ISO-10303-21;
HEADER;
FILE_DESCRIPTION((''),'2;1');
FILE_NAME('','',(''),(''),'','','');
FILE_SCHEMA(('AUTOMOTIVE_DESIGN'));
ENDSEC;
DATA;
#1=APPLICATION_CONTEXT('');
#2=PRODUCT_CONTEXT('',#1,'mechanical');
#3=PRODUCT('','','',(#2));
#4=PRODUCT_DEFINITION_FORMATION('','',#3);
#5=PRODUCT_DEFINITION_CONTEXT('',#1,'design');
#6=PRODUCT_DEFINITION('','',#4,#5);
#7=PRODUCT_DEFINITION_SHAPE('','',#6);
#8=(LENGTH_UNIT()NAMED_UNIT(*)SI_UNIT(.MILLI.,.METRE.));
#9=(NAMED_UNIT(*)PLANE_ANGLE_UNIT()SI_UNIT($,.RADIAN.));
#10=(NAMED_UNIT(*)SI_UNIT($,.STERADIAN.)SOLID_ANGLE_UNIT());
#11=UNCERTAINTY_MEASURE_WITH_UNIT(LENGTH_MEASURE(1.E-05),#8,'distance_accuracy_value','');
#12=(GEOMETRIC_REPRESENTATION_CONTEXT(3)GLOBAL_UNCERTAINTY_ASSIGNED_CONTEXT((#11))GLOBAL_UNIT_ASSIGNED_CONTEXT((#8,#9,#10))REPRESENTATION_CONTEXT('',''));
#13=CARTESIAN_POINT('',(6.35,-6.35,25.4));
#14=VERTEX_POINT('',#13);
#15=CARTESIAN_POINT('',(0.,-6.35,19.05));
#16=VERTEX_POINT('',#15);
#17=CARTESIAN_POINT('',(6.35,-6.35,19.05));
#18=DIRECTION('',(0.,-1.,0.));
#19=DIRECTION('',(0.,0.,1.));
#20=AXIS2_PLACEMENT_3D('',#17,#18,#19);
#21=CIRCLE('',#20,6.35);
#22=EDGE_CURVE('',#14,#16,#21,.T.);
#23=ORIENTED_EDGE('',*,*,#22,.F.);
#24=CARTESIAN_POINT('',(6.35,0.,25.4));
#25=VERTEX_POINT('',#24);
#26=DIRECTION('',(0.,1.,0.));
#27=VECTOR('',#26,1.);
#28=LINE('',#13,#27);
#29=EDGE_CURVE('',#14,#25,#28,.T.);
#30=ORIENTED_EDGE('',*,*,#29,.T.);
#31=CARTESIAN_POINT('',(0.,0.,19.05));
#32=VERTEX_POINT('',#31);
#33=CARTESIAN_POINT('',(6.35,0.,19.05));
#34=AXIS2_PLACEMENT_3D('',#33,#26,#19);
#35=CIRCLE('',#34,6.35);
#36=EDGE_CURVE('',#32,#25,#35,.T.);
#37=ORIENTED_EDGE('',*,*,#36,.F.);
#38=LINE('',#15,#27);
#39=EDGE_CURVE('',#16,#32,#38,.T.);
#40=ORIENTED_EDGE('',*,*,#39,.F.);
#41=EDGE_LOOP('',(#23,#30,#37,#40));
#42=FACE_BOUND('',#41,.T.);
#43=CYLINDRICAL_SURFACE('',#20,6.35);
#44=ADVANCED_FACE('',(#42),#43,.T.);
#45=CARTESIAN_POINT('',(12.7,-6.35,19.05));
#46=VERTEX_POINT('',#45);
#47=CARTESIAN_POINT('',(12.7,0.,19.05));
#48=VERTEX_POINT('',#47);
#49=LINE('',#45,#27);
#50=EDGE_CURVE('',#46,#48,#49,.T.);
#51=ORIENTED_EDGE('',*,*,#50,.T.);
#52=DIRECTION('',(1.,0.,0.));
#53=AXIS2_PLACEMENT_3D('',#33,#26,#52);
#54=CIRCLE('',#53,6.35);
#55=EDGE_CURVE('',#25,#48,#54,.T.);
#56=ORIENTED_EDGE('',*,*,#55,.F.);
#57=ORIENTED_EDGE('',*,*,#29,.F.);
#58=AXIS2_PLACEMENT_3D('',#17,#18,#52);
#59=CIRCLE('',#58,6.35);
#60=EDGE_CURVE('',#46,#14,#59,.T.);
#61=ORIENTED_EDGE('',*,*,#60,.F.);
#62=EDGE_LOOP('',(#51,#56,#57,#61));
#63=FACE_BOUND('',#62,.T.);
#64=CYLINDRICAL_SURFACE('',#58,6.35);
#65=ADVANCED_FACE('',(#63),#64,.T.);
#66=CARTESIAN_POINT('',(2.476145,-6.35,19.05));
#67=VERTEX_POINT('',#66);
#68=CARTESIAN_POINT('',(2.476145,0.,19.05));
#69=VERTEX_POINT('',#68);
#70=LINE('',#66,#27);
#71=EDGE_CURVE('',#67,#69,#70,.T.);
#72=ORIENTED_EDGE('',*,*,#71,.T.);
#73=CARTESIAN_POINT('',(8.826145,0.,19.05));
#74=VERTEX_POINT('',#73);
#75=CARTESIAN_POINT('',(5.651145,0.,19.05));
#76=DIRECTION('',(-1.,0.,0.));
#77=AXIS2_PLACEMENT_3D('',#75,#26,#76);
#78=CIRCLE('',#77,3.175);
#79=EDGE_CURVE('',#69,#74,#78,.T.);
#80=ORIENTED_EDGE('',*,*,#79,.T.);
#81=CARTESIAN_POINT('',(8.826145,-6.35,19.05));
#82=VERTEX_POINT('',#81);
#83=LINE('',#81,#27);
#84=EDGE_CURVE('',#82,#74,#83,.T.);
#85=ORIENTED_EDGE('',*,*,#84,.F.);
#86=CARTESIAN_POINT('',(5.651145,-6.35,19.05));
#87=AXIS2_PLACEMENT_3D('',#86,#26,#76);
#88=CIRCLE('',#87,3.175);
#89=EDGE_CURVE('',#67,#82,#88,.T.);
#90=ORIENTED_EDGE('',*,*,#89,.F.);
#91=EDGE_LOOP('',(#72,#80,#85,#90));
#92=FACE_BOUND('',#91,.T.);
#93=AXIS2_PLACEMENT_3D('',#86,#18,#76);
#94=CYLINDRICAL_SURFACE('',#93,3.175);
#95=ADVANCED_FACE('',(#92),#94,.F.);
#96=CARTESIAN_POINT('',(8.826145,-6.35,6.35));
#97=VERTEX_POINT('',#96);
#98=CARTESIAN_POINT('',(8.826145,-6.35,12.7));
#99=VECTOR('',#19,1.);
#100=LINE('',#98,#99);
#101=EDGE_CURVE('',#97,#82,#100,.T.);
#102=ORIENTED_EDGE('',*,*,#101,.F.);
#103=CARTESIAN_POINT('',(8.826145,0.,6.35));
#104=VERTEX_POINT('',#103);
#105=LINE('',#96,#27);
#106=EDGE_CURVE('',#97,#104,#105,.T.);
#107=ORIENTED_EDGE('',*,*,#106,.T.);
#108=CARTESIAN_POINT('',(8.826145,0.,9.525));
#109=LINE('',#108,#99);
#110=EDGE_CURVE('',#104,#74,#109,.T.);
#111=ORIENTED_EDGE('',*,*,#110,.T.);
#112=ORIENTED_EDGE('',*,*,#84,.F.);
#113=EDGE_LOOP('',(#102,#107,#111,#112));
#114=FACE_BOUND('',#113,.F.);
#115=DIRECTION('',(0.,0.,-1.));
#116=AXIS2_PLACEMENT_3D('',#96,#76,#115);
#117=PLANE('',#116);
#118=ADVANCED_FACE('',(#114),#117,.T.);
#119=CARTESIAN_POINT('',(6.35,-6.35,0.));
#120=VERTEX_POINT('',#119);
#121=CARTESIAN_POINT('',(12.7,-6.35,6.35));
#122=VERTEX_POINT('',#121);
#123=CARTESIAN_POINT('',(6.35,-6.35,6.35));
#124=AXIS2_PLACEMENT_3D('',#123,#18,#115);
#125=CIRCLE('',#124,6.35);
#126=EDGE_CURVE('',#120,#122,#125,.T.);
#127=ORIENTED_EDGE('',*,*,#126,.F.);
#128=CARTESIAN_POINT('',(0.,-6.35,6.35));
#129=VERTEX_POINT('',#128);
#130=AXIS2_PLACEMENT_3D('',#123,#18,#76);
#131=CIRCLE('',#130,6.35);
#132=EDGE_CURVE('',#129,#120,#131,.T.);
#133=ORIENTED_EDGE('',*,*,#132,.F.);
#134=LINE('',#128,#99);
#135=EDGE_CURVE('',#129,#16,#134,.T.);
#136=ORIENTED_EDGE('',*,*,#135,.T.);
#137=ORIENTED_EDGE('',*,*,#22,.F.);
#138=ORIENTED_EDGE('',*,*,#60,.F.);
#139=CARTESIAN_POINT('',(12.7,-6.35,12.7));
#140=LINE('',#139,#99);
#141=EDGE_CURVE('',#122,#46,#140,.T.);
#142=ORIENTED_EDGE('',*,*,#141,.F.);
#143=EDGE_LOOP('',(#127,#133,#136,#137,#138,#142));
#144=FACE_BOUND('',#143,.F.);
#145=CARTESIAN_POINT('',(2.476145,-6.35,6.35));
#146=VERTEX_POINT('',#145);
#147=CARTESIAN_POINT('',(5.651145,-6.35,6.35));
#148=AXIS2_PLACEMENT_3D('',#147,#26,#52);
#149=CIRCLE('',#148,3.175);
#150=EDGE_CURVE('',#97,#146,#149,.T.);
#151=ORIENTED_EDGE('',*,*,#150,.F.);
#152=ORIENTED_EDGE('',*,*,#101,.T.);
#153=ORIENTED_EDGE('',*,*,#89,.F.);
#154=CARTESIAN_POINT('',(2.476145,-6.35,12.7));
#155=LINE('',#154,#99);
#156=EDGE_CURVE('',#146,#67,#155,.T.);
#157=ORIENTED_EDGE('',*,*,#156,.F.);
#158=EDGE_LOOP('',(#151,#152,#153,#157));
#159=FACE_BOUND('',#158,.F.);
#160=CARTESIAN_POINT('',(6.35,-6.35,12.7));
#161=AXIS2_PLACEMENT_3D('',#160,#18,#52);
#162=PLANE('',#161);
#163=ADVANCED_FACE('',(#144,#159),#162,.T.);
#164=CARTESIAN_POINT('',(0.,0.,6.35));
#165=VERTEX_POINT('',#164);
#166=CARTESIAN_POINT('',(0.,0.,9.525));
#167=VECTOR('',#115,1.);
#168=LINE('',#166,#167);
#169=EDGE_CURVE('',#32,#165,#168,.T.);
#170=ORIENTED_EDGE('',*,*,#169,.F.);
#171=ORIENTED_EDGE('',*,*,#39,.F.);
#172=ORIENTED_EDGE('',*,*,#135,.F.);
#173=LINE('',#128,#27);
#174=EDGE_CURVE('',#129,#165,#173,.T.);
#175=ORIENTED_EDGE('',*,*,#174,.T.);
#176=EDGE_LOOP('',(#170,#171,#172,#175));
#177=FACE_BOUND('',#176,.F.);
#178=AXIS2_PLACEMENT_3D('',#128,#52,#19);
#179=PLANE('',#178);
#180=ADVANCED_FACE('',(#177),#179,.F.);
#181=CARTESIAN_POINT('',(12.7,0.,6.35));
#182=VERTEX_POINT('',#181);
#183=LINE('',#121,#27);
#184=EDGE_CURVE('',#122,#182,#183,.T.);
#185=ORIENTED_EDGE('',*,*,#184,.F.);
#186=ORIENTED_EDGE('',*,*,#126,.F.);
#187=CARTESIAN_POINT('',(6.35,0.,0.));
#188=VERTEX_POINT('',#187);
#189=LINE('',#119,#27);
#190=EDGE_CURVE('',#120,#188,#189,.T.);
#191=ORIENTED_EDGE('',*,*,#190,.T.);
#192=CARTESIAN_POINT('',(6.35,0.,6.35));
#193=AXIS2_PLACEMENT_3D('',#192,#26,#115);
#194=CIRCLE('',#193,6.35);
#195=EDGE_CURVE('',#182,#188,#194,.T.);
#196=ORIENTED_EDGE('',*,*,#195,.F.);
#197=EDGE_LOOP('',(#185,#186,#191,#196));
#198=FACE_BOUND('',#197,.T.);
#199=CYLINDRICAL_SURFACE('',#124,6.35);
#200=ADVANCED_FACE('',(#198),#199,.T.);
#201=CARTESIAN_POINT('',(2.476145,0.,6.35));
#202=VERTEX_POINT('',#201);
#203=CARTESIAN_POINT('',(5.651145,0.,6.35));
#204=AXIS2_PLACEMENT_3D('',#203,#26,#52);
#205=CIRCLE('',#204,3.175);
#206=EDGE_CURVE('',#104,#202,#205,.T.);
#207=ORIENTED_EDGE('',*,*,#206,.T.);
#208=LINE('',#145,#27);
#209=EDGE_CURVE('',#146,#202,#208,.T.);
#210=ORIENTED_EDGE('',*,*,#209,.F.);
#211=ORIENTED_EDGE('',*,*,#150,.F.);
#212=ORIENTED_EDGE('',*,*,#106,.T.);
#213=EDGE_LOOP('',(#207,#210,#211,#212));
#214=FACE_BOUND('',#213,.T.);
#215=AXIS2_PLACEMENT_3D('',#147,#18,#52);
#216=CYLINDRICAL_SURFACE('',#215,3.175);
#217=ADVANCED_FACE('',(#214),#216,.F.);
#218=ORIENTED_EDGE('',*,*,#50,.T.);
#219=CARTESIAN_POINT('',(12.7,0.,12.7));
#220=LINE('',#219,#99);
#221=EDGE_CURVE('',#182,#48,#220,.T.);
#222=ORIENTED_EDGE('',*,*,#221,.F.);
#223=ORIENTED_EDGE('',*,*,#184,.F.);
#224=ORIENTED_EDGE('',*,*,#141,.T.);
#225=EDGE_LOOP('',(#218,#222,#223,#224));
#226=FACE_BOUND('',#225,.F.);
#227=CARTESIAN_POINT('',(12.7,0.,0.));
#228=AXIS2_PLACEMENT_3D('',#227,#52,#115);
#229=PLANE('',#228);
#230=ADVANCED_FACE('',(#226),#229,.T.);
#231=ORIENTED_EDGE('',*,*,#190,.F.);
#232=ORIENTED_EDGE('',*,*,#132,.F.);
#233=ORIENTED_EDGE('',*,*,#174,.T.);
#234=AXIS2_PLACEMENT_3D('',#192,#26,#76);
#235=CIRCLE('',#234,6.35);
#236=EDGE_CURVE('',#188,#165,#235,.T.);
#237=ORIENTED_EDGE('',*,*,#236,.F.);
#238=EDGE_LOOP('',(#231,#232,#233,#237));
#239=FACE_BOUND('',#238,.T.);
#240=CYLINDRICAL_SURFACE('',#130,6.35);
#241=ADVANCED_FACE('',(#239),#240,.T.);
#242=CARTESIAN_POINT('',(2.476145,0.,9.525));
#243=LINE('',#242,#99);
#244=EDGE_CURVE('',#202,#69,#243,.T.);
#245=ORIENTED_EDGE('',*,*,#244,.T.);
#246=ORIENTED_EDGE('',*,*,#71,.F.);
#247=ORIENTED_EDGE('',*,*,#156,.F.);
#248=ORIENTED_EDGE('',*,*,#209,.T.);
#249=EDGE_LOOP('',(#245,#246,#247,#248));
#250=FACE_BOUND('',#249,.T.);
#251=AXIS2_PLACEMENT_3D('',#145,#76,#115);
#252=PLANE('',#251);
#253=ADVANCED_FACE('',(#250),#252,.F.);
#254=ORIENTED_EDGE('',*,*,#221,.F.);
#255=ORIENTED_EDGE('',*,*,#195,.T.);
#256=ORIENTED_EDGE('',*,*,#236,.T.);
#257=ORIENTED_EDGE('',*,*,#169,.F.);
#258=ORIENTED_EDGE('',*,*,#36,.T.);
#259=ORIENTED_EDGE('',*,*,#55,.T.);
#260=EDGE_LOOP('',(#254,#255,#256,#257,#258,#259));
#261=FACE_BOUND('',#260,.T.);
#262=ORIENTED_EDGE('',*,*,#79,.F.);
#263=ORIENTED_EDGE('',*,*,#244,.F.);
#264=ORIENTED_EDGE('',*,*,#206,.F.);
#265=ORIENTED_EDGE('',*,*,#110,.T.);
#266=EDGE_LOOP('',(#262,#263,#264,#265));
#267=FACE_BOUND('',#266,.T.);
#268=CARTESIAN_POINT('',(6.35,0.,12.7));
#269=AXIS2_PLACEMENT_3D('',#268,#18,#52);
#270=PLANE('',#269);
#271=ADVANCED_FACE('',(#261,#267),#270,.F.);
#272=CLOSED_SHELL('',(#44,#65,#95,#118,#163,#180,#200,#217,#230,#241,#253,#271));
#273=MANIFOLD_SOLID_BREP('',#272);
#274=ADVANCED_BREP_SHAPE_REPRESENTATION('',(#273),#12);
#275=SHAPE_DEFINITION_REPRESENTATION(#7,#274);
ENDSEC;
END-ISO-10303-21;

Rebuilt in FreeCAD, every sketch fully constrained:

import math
import FreeCAD as App
import Part
import Sketcher

V = App.Vector
Q = App.Units.Quantity

doc = App.newDocument("Part")
body = doc.addObject("PartDesign::Body", "Body")

# Sketch on XZ plane
sketch1 = body.newObject("Sketcher::SketchObject", "Sketch")
sketch1.AttachmentSupport = (doc.getObject("XZ_Plane"), [""])
sketch1.MapMode = "FlatFace"
sketch1.addGeometry([
    Part.LineSegment(V(-12.7, 25.4, 0), V(-12.7, 0, 0)),
    Part.LineSegment(V(-12.7, 0, 0), V(0, 0, 0)),
    Part.LineSegment(V(0, 0, 0), V(0, 25.4, 0)),
    Part.LineSegment(V(0, 25.4, 0), V(-12.7, 25.4, 0)),
], False)
sketch1.addConstraint([
    Sketcher.Constraint("Coincident", 0, 2, 1, 1),
    Sketcher.Constraint("Coincident", 1, 2, 2, 1),
    Sketcher.Constraint("Coincident", 2, 2, 3, 1),
    Sketcher.Constraint("Coincident", 3, 2, 0, 1),
    Sketcher.Constraint("Vertical", 0),
    Sketcher.Constraint("Horizontal", 1),
    Sketcher.Constraint("Vertical", 2),
    Sketcher.Constraint("Horizontal", 3),
    Sketcher.Constraint("Coincident", 1, 2, -1, 1),
    Sketcher.Constraint("DistanceY", 0, 2, 0, 1, Q("1 in")),
    Sketcher.Constraint("DistanceX", 1, 1, 1, 2, Q("0.5 in")),
])
pad1 = body.newObject("PartDesign::Pad", "Pad")
pad1.Profile = sketch1
pad1.Length = Q("0.25 in")

# Sketch on XZ plane
sketch2 = body.newObject("Sketcher::SketchObject", "Sketch001")
sketch2.AttachmentSupport = (doc.getObject("XZ_Plane"), [""])
sketch2.MapMode = "FlatFace"
sketch2.AttachmentOffset = App.Placement(V(0, 0, 0.25 * 25.4), App.Rotation())
sketch2.addGeometry([
    Part.LineSegment(V(-12.7, 25.4, 0), V(-12.7, 19.05, 0)),  # 0
    Part.ArcOfCircle(Part.Circle(V(-6.35, 19.05, 0), V(0, 0, 1), 6.35), math.radians(90), math.radians(180)),  # 1
    Part.LineSegment(V(-6.35, 25.4, 0), V(-12.7, 25.4, 0)),  # 2
    Part.LineSegment(V(0, 25.4, 0), V(-6.35, 25.4, 0)),  # 3
    Part.ArcOfCircle(Part.Circle(V(-6.35, 19.05, 0), V(0, 0, 1), 6.35), math.radians(0), math.radians(90)),  # 4
    Part.LineSegment(V(0, 19.05, 0), V(0, 25.4, 0)),  # 5
    Part.ArcOfCircle(Part.Circle(V(-6.35, 6.35, 0), V(0, 0, 1), 6.35), math.radians(-90), math.radians(0)),  # 6
    Part.LineSegment(V(-6.35, 0, 0), V(0, 0, 0)),  # 7
    Part.LineSegment(V(0, 0, 0), V(0, 6.35, 0)),  # 8
    Part.ArcOfCircle(Part.Circle(V(-6.35, 6.35, 0), V(0, 0, 1), 6.35), math.radians(180), math.radians(270)),  # 9
    Part.LineSegment(V(-12.7, 6.35, 0), V(-12.7, 0, 0)),  # 10
    Part.LineSegment(V(-12.7, 0, 0), V(-6.35, 0, 0)),  # 11
], False)
sketch2.addConstraint([
    Sketcher.Constraint("Tangent", 0, 2, 1, 2),
    Sketcher.Constraint("Tangent", 1, 1, 2, 1),
    Sketcher.Constraint("Coincident", 2, 2, 0, 1),
    Sketcher.Constraint("Tangent", 3, 2, 4, 2),
    Sketcher.Constraint("Tangent", 4, 1, 5, 1),
    Sketcher.Constraint("Coincident", 5, 2, 3, 1),
    Sketcher.Constraint("Tangent", 6, 1, 7, 1),
    Sketcher.Constraint("Coincident", 7, 2, 8, 1),
    Sketcher.Constraint("Tangent", 8, 2, 6, 2),
    Sketcher.Constraint("Tangent", 9, 1, 10, 1),
    Sketcher.Constraint("Coincident", 10, 2, 11, 1),
    Sketcher.Constraint("Tangent", 11, 2, 9, 2),
    Sketcher.Constraint("Vertical", 0),
    Sketcher.Constraint("Horizontal", 2),
    Sketcher.Constraint("Horizontal", 3),
    Sketcher.Constraint("Vertical", 5),
    Sketcher.Constraint("Horizontal", 7),
    Sketcher.Constraint("Vertical", 8),
    Sketcher.Constraint("Vertical", 10),
    Sketcher.Constraint("Horizontal", 11),
    Sketcher.Constraint("Coincident", 7, 2, -1, 1),
    Sketcher.Constraint("Coincident", 4, 3, 1, 3),
    Sketcher.Constraint("Coincident", 9, 3, 6, 3),
    Sketcher.Constraint("Equal", 1, 4),
    Sketcher.Constraint("Equal", 4, 6),
    Sketcher.Constraint("Equal", 6, 9),
    Sketcher.Constraint("PointOnObject", 4, 1, -2),
    Sketcher.Constraint("Radius", 1, Q("0.25 in")),
    Sketcher.Constraint("DistanceY", -1, 1, 1, 1, Q("1 in")),
])
pocket1 = body.newObject("PartDesign::Pocket", "Pocket")
pocket1.Profile = sketch2
pocket1.Length = Q("10 in")

# Sketch on XZ plane
sketch3 = body.newObject("Sketcher::SketchObject", "Sketch002")
sketch3.AttachmentSupport = (doc.getObject("XZ_Plane"), [""])
sketch3.MapMode = "FlatFace"
sketch3.AttachmentOffset = App.Placement(V(0, 0, 0.25 * 25.4), App.Rotation())
sketch3.addGeometry([
    Part.ArcOfCircle(Part.Circle(V(-5.651145, 19.05, 0), V(0, 0, 1), 3.175), math.radians(0), math.radians(180)),
    Part.LineSegment(V(-8.826145, 19.05, 0), V(-8.826145, 6.35, 0)),
    Part.ArcOfCircle(Part.Circle(V(-5.651145, 6.35, 0), V(0, 0, 1), 3.175), math.radians(180), math.radians(360)),
    Part.LineSegment(V(-2.476145, 6.35, 0), V(-2.476145, 19.05, 0)),
], False)
sketch3.addConstraint([
    Sketcher.Constraint("Tangent", 0, 2, 1, 1),
    Sketcher.Constraint("Tangent", 1, 2, 2, 1),
    Sketcher.Constraint("Tangent", 2, 2, 3, 1),
    Sketcher.Constraint("Tangent", 3, 2, 0, 1),
    Sketcher.Constraint("Vertical", 1),
    Sketcher.Constraint("Vertical", 3),
    Sketcher.Constraint("DistanceY", 1, 2, 1, 1, Q("0.5 in")),
    Sketcher.Constraint("Radius", 0, Q("0.125 in")),
    Sketcher.Constraint("DistanceY", -1, 1, 0, 3, Q("0.75 in")),
    Sketcher.Constraint("DistanceX", 0, 3, -1, 1, Q("5.651145 mm")),
])
pocket2 = body.newObject("PartDesign::Pocket", "Pocket001")
pocket2.Profile = sketch3
pocket2.Length = Q("10 in")
body2 = doc.addObject("PartDesign::Body", "Body001")
doc.recompute()

body2.BaseFeature = body
doc.recompute()

mirroring = doc.addObject("Part::Mirroring", "Mirroring")
mirroring.Source = body
mirroring.Base = V(0, 0, 0)
mirroring.Normal = V(1, 0, 0)
body3 = doc.addObject("PartDesign::Body", "Body002")
body3.BaseFeature = mirroring
boolean = body2.newObject("PartDesign::Boolean", "Boolean")
boolean.Type = "Fuse"
boolean.addObjects([body3])
doc.recompute()

# Sketch on XZ plane
sketch4 = body2.newObject("Sketcher::SketchObject", "Sketch003")
sketch4.AttachmentSupport = (doc.getObject("XZ_Plane001"), [""])
sketch4.MapMode = "FlatFace"
sketch4.AttachmentOffset = App.Placement(V(0, 0, 0.25 * 25.4), App.Rotation())
sketch4.addGeometry([
    Part.LineSegment(V(0, 6.35, 0), V(0, 19.05, 0)),  # 0
    Part.ArcOfCircle(Part.Circle(V(-6.35, 19.05, 0), V(0, 0, 1), 6.35), math.radians(0), math.radians(180)),  # 1
    Part.LineSegment(V(-12.7, 19.05, 0), V(-12.7, 6.35, 0)),  # 2
    Part.ArcOfCircle(Part.Circle(V(-6.35, 6.35, 0), V(0, 0, 1), 6.35), math.radians(180), math.radians(360)),  # 3
    Part.ArcOfCircle(Part.Circle(V(-5.651145, 6.35, 0), V(0, 0, 1), 3.175), math.radians(180), math.radians(360)),  # 4
    Part.LineSegment(V(-8.826145, 6.35, 0), V(-8.826145, 19.05, 0)),  # 5
    Part.ArcOfCircle(Part.Circle(V(-5.651145, 19.05, 0), V(0, 0, 1), 3.175), math.radians(0), math.radians(180)),  # 6
    Part.LineSegment(V(-2.476145, 19.05, 0), V(-2.476145, 6.35, 0)),  # 7
], False)
sketch4.addConstraint([
    Sketcher.Constraint("Tangent", 0, 2, 1, 1),
    Sketcher.Constraint("Tangent", 1, 2, 2, 1),
    Sketcher.Constraint("Tangent", 2, 2, 3, 1),
    Sketcher.Constraint("Tangent", 3, 2, 0, 1),
    Sketcher.Constraint("Tangent", 4, 1, 5, 1),
    Sketcher.Constraint("Tangent", 5, 2, 6, 2),
    Sketcher.Constraint("Tangent", 6, 1, 7, 1),
    Sketcher.Constraint("Tangent", 7, 2, 4, 2),
    Sketcher.Constraint("Vertical", 0),
    Sketcher.Constraint("Vertical", 2),
    Sketcher.Constraint("Vertical", 5),
    Sketcher.Constraint("Vertical", 7),
    Sketcher.Constraint("PointOnObject", 0, 2, -2),
    Sketcher.Constraint("Horizontal", 3, 3, 4, 3),
    Sketcher.Constraint("Horizontal", 1, 3, 6, 3),
    Sketcher.Constraint("Radius", 1, Q("0.25 in")),
    Sketcher.Constraint("DistanceY", 0, 1, 0, 2, Q("0.5 in")),
    Sketcher.Constraint("Radius", 4, Q("0.125 in")),
    Sketcher.Constraint("DistanceY", -1, 1, 1, 3, Q("0.75 in")),
    Sketcher.Constraint("DistanceX", 4, 3, -1, 1, Q("5.651145 mm")),
])
pocket3 = body2.newObject("PartDesign::Pocket", "Pocket002")
pocket3.Profile = sketch4
pocket3.Length = Q("999 in")
mirroring.Visibility = False

doc.recompute()
